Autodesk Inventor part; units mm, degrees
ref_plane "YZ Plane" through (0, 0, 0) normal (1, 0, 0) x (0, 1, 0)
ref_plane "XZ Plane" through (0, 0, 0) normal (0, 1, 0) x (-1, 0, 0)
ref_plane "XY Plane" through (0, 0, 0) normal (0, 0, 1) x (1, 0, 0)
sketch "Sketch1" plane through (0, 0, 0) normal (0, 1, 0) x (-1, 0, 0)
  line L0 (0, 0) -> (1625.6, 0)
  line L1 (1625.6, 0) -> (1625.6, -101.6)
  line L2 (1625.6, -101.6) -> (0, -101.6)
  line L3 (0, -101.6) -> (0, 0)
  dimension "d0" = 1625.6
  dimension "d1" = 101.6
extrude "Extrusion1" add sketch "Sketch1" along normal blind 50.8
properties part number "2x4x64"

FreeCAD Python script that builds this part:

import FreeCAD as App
import Part
import Sketcher

V = App.Vector
Q = App.Units.Quantity

doc = App.newDocument("Part")
body = doc.addObject("PartDesign::Body", "Body")

# Sketch on XZ plane
sketch1 = body.newObject("Sketcher::SketchObject", "Sketch")
sketch1.AttachmentSupport = (doc.getObject("XZ_Plane"), [""])
sketch1.MapMode = "FlatFace"
sketch1.addGeometry(Part.LineSegment(V(-1626, 0, 0), V(0, 0, 0)), False)
sketch1.addGeometry(Part.LineSegment(V(0, 0, 0), V(0, -102, 0)), False)
sketch1.addGeometry(Part.LineSegment(V(0, -102, 0), V(-1626, -102, 0)), False)
sketch1.addGeometry(Part.LineSegment(V(-1626, -102, 0), V(-1626, 0, 0)), False)
sketch1.addConstraint(Sketcher.Constraint("Coincident", 0, 2, 1, 1))
sketch1.addConstraint(Sketcher.Constraint("Coincident", 1, 2, 2, 1))
sketch1.addConstraint(Sketcher.Constraint("Coincident", 2, 2, 3, 1))
sketch1.addConstraint(Sketcher.Constraint("Coincident", 3, 2, 0, 1))
sketch1.addConstraint(Sketcher.Constraint("Horizontal", 0))
sketch1.addConstraint(Sketcher.Constraint("Vertical", 1))
sketch1.addConstraint(Sketcher.Constraint("Horizontal", 2))
sketch1.addConstraint(Sketcher.Constraint("Vertical", 3))
sketch1.addConstraint(Sketcher.Constraint("Coincident", 0, 2, -1, 1))
sketch1.addConstraint(Sketcher.Constraint("DistanceX", 0, 1, 0, 2, Q("64 in")))
sketch1.addConstraint(Sketcher.Constraint("DistanceY", 1, 2, 1, 1, Q("4 in")))
pad1 = body.newObject("PartDesign::Pad", "Pad")
pad1.Profile = sketch1
pad1.Length = Q("2 in")
pad1.Reversed = True

doc.recompute()
